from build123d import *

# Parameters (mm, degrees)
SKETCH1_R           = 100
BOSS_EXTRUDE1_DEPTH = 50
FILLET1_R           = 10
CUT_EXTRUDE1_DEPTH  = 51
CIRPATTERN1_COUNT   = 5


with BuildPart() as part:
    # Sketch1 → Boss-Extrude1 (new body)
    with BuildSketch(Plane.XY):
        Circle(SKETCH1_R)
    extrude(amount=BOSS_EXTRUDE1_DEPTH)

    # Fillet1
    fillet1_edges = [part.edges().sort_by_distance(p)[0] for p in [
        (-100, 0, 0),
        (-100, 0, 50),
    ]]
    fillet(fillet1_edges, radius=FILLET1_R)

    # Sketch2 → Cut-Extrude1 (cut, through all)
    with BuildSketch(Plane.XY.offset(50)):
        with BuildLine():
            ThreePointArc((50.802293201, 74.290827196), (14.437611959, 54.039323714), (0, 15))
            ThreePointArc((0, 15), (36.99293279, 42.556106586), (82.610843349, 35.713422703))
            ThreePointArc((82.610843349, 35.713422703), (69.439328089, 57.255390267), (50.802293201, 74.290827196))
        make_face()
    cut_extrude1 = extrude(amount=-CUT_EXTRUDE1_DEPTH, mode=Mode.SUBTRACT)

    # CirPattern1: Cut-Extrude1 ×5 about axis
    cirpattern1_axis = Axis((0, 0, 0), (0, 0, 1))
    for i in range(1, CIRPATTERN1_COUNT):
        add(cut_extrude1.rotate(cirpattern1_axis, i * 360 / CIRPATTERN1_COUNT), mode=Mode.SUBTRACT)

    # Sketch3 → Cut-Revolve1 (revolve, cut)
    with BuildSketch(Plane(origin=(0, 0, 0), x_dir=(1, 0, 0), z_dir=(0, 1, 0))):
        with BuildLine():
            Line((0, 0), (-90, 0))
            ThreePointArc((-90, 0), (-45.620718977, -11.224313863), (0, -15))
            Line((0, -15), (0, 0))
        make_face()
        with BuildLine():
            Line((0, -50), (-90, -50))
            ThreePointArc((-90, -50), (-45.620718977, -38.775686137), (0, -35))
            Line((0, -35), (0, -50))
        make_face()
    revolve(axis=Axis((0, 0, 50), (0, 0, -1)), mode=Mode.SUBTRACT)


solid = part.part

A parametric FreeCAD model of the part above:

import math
import FreeCAD as App
import Part
import Sketcher


def edges_at(feature, points):
    """Names of the edges that pass closest to the given points."""
    edges = feature.Shape.Edges
    near = lambda p: min(range(len(edges)), key=lambda i: edges[i].distToShape(Part.Vertex(*p))[0])
    return sorted({f"Edge{near(p) + 1}" for p in points})

doc = App.newDocument("Part")
body = doc.addObject("PartDesign::Body", "Body")

# Sketch on XY plane
sketch1 = body.newObject("Sketcher::SketchObject", "Sketch")
sketch1.AttachmentSupport = (doc.getObject("XY_Plane"), [""])
sketch1.MapMode = "FlatFace"
sketch1.addGeometry(Part.Circle(App.Vector(0, 0, 0), App.Vector(0, 0, 1), 100), False)
sketch1.addConstraint([
    Sketcher.Constraint("Coincident", 0, 3, -1, 1),
    Sketcher.Constraint("Diameter", 0, 200.0),
])
pad1 = body.newObject("PartDesign::Pad", "Pad")
pad1.Profile = sketch1
pad1.Length = 50
doc.recompute()

fillet = body.newObject("PartDesign::Fillet", "Fillet")
fillet.Base = (pad1, edges_at(pad1, [(-100, 0, 0), (-100, 0, 50)]))
fillet.Radius = 10

# Sketch on XY plane
sketch2 = body.newObject("Sketcher::SketchObject", "Sketch001")
sketch2.AttachmentSupport = (doc.getObject("XY_Plane"), [""])
sketch2.MapMode = "FlatFace"
sketch2.AttachmentOffset = App.Placement(App.Vector(0, 0, 50), App.Rotation())
sketch2.addGeometry([
    Part.ArcOfCircle(Part.Circle(App.Vector(60, 15, 0), App.Vector(0, 0, 1), 60), math.radians(98.817932), math.radians(180)),
    Part.ArcOfCircle(Part.Circle(App.Vector(51.585322, -15.642366, 0), App.Vector(0, 0, 1), 60), math.radians(58.862608), math.radians(149.289126)),
    Part.ArcOfCircle(Part.Circle(App.Vector(0, 0, 0), App.Vector(0, 0, 1), 90), math.radians(23.37927), math.radians(55.63451)),
], False)
sketch2.addConstraint([
    Sketcher.Constraint("Coincident", 0, 2, 1, 2),
    Sketcher.Constraint("Coincident", 1, 1, 2, 1),
    Sketcher.Constraint("Coincident", 2, 2, 0, 1),
    Sketcher.Constraint("Coincident", 2, 3, -1, 1),
    Sketcher.Constraint("Equal", 0, 1),
    Sketcher.Constraint("PointOnObject", 0, 2, -2),
    Sketcher.Constraint("Radius", 0, 60.0),
    Sketcher.Constraint("Radius", 2, 90.0),
    Sketcher.Constraint("DistanceY", -1, 1, 0, 3, 15.0),
    Sketcher.Constraint("DistanceY", -1, 1, 0, 2, 15.0),
    Sketcher.Constraint("DistanceX", -1, 1, 1, 3, 51.585322),
])
pocket1 = body.newObject("PartDesign::Pocket", "Pocket")
pocket1.Profile = sketch2
pocket1.Type = "ThroughAll"
doc.recompute()

polarpattern = body.newObject("PartDesign::PolarPattern", "PolarPattern")
polarpattern.Originals = [pocket1]
polarpattern.Axis = (doc.getObject("Z_Axis"), [""])
polarpattern.Angle = 360
polarpattern.Occurrences = 5
body.Tip = polarpattern

# Sketch on XZ plane
sketch3 = body.newObject("Sketcher::SketchObject", "Sketch002")
sketch3.AttachmentSupport = (doc.getObject("XZ_Plane"), [""])
sketch3.MapMode = "FlatFace"
sketch3.addGeometry([
    Part.LineSegment(App.Vector(0, 0, 0), App.Vector(-90, 0, 0)),  # 0
    Part.ArcOfCircle(Part.Circle(App.Vector(0, -262.5, 0), App.Vector(0, 0, 1), 277.5), math.radians(90), math.radians(108.924644)),  # 1
    Part.LineSegment(App.Vector(0, 15, 0), App.Vector(0, 0, 0)),  # 2
    Part.LineSegment(App.Vector(-90, 50, 0), App.Vector(0, 50, 0)),  # 3
    Part.LineSegment(App.Vector(0, 50, 0), App.Vector(0, 35, 0)),  # 4
    Part.ArcOfCircle(Part.Circle(App.Vector(0, 312.5, 0), App.Vector(0, 0, 1), 277.5), math.radians(-108.924644), math.radians(-90)),  # 5
], False)
sketch3.addConstraint([
    Sketcher.Constraint("Coincident", 0, 2, 1, 2),
    Sketcher.Constraint("Coincident", 1, 1, 2, 1),
    Sketcher.Constraint("Coincident", 2, 2, 0, 1),
    Sketcher.Constraint("Coincident", 3, 2, 4, 1),
    Sketcher.Constraint("Coincident", 4, 2, 5, 2),
    Sketcher.Constraint("Coincident", 5, 1, 3, 1),
    Sketcher.Constraint("Horizontal", 0),
    Sketcher.Constraint("Vertical", 2),
    Sketcher.Constraint("Horizontal", 3),
    Sketcher.Constraint("Vertical", 4),
    Sketcher.Constraint("Coincident", 2, 2, -1, 1),
    Sketcher.Constraint("Equal", 1, 5),
    Sketcher.Constraint("PointOnObject", 1, 3, -2),
    Sketcher.Constraint("PointOnObject", 5, 3, -2),
    Sketcher.Constraint("PointOnObject", 3, 2, -2),
    Sketcher.Constraint("Vertical", 0, 2, 5, 1),
    Sketcher.Constraint("Radius", 1, 277.5),
    Sketcher.Constraint("DistanceX", 0, 2, 0, 1, 90.0),
    Sketcher.Constraint("DistanceY", -1, 1, 3, 2, 50.0),
])
groove = body.newObject("PartDesign::Groove", "Groove")
groove.Profile = sketch3
groove.ReferenceAxis = (sketch3, ["V_Axis"])
groove.Angle = 360

doc.recompute()
